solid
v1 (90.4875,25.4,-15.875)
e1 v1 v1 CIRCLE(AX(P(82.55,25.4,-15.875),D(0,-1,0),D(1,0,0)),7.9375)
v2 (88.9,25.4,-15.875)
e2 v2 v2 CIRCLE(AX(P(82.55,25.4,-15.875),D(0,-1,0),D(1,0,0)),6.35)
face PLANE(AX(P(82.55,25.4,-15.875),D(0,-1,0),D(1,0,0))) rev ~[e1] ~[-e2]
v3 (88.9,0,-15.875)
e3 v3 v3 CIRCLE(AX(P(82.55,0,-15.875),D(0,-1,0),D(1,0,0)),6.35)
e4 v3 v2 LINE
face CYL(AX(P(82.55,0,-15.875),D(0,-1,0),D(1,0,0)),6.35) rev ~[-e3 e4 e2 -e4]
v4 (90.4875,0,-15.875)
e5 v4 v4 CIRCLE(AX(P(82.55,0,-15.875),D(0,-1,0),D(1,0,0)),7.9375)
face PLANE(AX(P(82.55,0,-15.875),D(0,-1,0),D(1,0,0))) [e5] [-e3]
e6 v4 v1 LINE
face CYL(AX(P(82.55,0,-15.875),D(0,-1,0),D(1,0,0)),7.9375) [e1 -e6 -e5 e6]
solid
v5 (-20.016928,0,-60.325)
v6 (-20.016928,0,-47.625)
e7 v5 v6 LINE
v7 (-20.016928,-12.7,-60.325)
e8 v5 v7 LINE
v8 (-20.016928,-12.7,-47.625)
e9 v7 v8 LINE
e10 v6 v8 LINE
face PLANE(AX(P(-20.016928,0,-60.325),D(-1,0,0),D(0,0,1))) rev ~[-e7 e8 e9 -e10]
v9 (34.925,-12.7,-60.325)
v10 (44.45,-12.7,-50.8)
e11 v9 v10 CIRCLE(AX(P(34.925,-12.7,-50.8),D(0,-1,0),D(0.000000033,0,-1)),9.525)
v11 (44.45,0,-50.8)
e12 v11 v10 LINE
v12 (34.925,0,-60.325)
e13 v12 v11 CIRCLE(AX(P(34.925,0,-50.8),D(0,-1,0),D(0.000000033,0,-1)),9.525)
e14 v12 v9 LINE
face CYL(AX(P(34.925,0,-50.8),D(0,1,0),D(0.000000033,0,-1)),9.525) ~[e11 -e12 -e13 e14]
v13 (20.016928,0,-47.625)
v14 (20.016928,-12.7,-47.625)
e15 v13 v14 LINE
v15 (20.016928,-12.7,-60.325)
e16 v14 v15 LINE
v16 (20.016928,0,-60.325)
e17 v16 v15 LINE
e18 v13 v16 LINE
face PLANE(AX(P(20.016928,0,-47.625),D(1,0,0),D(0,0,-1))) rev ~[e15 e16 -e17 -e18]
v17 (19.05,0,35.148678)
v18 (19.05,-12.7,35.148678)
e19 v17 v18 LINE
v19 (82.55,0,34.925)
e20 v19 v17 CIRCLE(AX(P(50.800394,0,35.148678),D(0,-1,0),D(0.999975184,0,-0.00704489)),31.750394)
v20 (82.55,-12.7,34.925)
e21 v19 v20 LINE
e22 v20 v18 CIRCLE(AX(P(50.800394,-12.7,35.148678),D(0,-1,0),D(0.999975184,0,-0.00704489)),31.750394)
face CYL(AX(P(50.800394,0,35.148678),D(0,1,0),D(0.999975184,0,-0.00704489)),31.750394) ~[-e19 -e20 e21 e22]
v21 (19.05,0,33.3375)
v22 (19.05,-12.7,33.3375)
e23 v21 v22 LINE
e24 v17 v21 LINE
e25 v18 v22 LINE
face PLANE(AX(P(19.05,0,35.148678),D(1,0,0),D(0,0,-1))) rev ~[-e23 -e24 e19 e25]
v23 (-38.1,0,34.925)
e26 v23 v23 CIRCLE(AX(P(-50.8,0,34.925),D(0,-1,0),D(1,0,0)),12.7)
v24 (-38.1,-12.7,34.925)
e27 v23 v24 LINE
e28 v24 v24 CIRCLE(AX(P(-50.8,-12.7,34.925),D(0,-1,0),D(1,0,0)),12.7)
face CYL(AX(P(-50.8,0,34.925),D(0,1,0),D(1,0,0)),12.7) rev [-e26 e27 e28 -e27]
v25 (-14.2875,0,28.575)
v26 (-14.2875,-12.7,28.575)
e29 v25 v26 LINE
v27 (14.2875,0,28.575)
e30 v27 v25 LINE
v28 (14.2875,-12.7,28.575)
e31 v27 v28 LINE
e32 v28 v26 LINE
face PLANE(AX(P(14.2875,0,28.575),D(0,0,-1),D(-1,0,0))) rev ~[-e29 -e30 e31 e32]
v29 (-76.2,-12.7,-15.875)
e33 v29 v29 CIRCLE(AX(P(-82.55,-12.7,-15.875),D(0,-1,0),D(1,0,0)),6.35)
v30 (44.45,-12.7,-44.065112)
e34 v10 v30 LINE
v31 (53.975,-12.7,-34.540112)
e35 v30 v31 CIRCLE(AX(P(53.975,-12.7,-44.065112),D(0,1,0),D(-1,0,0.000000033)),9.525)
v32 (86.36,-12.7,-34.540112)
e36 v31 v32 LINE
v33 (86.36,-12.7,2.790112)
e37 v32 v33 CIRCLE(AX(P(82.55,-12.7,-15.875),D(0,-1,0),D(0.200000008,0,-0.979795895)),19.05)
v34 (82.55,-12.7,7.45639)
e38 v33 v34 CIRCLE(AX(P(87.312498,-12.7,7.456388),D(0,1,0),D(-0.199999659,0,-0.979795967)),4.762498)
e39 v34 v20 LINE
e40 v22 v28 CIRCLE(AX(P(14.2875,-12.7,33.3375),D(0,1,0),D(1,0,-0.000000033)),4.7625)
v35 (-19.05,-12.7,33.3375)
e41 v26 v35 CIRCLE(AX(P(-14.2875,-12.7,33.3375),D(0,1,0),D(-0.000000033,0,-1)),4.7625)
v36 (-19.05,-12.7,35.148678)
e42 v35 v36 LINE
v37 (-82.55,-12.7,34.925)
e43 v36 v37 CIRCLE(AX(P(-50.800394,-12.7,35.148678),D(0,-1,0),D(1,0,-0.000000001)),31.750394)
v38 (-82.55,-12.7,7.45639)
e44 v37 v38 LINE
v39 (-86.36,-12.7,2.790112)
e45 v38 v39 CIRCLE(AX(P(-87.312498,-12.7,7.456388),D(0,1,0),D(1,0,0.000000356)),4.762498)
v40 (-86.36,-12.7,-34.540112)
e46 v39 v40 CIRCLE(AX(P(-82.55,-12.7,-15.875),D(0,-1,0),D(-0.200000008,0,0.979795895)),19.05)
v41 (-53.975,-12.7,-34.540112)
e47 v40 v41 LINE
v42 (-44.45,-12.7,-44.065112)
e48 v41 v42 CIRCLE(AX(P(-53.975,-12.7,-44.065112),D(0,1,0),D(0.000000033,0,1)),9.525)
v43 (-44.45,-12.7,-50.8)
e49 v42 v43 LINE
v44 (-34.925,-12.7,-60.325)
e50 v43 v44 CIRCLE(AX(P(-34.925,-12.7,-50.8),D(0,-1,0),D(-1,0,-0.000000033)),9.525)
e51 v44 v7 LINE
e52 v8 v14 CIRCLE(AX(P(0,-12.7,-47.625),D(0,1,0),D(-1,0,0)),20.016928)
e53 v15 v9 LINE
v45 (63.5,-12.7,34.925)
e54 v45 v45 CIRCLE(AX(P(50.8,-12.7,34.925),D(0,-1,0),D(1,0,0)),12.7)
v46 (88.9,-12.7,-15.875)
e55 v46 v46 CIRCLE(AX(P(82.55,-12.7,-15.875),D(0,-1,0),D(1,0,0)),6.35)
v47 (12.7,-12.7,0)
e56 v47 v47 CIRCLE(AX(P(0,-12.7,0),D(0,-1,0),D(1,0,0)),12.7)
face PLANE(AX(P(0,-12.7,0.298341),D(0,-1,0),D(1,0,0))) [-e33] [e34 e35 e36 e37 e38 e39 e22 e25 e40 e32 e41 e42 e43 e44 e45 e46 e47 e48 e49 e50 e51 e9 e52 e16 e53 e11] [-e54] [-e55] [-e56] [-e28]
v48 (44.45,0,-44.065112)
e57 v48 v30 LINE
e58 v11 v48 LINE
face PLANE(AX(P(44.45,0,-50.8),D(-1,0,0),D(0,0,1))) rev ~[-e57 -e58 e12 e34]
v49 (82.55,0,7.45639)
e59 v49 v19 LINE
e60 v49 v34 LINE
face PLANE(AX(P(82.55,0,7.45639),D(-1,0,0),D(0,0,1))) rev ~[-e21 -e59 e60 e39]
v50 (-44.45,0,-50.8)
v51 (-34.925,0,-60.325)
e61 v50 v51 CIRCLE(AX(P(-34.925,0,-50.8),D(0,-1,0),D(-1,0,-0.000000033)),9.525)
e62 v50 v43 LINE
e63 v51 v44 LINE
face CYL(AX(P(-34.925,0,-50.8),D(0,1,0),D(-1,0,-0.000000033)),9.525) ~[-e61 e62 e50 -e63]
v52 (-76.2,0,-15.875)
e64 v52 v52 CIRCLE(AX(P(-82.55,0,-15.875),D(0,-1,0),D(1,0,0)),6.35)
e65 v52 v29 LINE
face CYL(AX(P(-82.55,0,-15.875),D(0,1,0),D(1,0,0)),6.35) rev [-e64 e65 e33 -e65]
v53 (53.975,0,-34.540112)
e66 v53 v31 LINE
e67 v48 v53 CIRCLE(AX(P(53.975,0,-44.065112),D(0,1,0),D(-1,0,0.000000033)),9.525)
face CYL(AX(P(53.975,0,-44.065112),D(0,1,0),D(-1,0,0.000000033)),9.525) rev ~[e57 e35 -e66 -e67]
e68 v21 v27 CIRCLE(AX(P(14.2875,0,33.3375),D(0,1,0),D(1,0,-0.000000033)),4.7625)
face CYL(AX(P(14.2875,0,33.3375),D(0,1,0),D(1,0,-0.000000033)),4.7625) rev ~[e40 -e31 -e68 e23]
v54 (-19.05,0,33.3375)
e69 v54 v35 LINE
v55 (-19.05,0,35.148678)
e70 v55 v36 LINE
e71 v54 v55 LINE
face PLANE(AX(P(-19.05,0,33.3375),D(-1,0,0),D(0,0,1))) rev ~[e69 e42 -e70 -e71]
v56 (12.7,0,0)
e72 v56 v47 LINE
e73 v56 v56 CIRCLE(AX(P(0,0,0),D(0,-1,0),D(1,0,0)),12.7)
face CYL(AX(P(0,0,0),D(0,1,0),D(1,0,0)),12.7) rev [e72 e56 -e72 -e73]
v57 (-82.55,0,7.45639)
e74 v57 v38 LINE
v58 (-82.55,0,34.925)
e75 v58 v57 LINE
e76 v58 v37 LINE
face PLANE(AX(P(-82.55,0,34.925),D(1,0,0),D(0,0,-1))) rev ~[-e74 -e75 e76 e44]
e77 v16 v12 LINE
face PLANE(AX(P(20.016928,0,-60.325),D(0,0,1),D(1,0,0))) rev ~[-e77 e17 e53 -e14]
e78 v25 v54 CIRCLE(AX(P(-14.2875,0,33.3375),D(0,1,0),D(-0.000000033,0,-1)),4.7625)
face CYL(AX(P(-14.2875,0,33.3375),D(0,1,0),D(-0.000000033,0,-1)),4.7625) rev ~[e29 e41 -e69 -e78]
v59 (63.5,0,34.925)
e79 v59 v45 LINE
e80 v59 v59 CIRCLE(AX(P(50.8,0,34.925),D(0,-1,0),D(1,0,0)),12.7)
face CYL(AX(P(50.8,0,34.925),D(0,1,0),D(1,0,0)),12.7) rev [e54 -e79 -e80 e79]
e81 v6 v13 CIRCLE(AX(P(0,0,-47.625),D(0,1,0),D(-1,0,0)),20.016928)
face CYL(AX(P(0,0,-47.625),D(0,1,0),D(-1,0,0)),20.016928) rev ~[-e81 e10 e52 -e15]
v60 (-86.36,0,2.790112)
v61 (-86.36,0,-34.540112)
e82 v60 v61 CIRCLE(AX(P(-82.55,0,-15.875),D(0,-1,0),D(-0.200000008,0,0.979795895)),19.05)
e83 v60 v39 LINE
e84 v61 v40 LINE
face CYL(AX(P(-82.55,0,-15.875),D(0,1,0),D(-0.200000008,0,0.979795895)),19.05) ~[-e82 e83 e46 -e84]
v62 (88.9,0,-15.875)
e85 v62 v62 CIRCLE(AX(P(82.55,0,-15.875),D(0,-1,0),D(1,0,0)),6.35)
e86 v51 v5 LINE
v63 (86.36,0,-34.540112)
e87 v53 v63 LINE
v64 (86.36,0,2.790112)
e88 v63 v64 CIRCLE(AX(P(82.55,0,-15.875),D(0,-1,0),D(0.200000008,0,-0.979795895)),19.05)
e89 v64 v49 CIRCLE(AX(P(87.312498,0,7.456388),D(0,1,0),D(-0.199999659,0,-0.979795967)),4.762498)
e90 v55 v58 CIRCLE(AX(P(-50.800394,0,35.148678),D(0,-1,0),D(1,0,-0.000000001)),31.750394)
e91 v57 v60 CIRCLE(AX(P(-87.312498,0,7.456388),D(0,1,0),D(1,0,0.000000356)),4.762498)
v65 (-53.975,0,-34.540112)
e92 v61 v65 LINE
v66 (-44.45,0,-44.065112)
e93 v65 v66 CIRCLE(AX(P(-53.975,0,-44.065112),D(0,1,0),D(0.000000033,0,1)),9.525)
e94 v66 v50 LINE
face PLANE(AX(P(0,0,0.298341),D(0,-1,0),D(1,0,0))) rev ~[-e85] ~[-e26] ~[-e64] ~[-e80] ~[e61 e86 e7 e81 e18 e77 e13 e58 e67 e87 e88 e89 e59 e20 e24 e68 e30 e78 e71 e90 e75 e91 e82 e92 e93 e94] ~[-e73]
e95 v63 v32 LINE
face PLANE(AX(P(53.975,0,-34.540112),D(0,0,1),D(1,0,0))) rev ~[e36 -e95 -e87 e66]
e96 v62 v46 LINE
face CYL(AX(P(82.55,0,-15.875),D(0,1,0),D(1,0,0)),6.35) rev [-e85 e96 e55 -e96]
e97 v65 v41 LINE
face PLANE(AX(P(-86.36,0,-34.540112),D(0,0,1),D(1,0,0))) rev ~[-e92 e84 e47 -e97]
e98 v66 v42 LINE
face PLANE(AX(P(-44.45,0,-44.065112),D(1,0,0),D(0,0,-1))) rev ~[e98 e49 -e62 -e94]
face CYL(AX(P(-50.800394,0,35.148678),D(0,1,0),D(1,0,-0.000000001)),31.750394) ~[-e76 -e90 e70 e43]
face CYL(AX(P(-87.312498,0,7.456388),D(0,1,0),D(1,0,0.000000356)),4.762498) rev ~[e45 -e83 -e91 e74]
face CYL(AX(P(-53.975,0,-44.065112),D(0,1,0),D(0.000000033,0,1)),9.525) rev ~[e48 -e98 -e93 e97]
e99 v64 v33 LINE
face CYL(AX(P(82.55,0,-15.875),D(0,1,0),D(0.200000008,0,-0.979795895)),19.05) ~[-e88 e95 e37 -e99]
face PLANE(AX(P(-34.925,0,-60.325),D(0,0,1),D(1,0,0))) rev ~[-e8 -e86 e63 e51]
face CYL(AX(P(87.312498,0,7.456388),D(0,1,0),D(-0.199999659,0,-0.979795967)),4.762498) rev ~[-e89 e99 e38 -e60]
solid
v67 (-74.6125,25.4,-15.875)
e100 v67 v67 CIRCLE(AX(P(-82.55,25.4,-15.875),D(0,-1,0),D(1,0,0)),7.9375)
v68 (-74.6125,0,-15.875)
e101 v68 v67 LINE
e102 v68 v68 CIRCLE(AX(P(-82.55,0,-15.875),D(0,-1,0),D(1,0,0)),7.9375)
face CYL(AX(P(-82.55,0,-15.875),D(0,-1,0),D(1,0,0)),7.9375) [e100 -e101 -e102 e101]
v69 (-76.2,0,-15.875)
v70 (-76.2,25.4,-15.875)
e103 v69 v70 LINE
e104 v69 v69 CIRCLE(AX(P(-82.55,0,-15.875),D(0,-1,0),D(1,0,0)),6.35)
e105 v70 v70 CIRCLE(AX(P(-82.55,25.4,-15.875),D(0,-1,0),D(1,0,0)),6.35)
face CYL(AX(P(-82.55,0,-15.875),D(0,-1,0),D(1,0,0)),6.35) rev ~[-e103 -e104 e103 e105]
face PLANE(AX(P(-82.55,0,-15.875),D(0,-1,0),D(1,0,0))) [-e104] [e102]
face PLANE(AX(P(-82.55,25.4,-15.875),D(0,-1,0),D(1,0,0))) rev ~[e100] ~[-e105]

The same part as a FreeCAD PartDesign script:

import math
import FreeCAD as App
import Part
import Sketcher
from FreeCAD import Vector
Q = App.Units.Quantity

doc = App.newDocument("Part")
body = doc.addObject("PartDesign::Body", "Body")

sketch1 = body.newObject("Sketcher::SketchObject", "Sketch")
sketch1.AttachmentSupport = (doc.getObject("XZ_Plane"), [""])
sketch1.MapMode = "FlatFace"
sketch1.addGeometry(Part.LineSegment(Vector(14.2875, 28.575, 0), Vector(-14.2875, 28.575, 0)), False)
sketch1.addGeometry(Part.ArcOfCircle(Part.Circle(Vector(-14.2875, 33.3375, 0), Vector(0, 0, 1), 4.7625), math.radians(-179.999998), math.radians(-90.000002)), False)
sketch1.addGeometry(Part.LineSegment(Vector(-19.05, 33.3375, 0), Vector(-19.05, 35.148678, 0)), False)
sketch1.addGeometry(Part.ArcOfCircle(Part.Circle(Vector(-50.800394, 35.148678, 0), Vector(0, 0, 1), 31.750394), math.radians(0), math.radians(180.403646)), False)
sketch1.addGeometry(Part.LineSegment(Vector(-82.55, 34.925, 0), Vector(-82.55, 7.45639, 0)), False)
sketch1.addGeometry(Part.ArcOfCircle(Part.Circle(Vector(-87.312498, 7.456388, 0), Vector(0, 0, 1), 4.762498), math.radians(-78.463061), math.radians(0.00002)), False)
sketch1.addGeometry(Part.ArcOfCircle(Part.Circle(Vector(-82.55, -15.875, 0), Vector(0, 0, 1), 19.05), math.radians(101.53696), math.radians(258.46304)), False)
sketch1.addGeometry(Part.LineSegment(Vector(-86.36, -34.540112, 0), Vector(-53.975, -34.540112, 0)), False)
sketch1.addGeometry(Part.ArcOfCircle(Part.Circle(Vector(-53.975, -44.065112, 0), Vector(0, 0, 1), 9.525), math.radians(0.000002), math.radians(89.999998)), False)
sketch1.addGeometry(Part.LineSegment(Vector(-44.45, -44.065112, 0), Vector(-44.45, -50.8, 0)), False)
sketch1.addGeometry(Part.ArcOfCircle(Part.Circle(Vector(-34.925, -50.8, 0), Vector(0, 0, 1), 9.525), math.radians(-179.999998), math.radians(-90.000002)), False)
sketch1.addGeometry(Part.LineSegment(Vector(-34.925, -60.325, 0), Vector(-20.016928, -60.325, 0)), False)
sketch1.addGeometry(Part.LineSegment(Vector(-20.016928, -60.325, 0), Vector(-20.016928, -47.625, 0)), False)
sketch1.addGeometry(Part.ArcOfCircle(Part.Circle(Vector(0, -47.625, 0), Vector(0, 0, 1), 20.016928), math.radians(0), math.radians(180)), False)
sketch1.addGeometry(Part.LineSegment(Vector(20.016928, -47.625, 0), Vector(20.016928, -60.325, 0)), False)
sketch1.addGeometry(Part.LineSegment(Vector(20.016928, -60.325, 0), Vector(34.925, -60.325, 0)), False)
sketch1.addGeometry(Part.ArcOfCircle(Part.Circle(Vector(34.925, -50.8, 0), Vector(0, 0, 1), 9.525), math.radians(-89.999998), math.radians(-0.000002)), False)
sketch1.addGeometry(Part.LineSegment(Vector(44.45, -50.8, 0), Vector(44.45, -44.065112, 0)), False)
sketch1.addGeometry(Part.ArcOfCircle(Part.Circle(Vector(53.975, -44.065112, 0), Vector(0, 0, 1), 9.525), math.radians(90.000002), math.radians(179.999998)), False)
sketch1.addGeometry(Part.LineSegment(Vector(53.975, -34.540112, 0), Vector(86.36, -34.540112, 0)), False)
sketch1.addGeometry(Part.ArcOfCircle(Part.Circle(Vector(82.55, -15.875, 0), Vector(0, 0, 1), 19.05), math.radians(-78.46304), math.radians(78.46304)), False)
sketch1.addGeometry(Part.ArcOfCircle(Part.Circle(Vector(87.312498, 7.456388, 0), Vector(0, 0, 1), 4.762498), math.radians(179.99998), math.radians(258.463061)), False)
sketch1.addGeometry(Part.LineSegment(Vector(82.55, 7.45639, 0), Vector(82.55, 34.925, 0)), False)
sketch1.addGeometry(Part.ArcOfCircle(Part.Circle(Vector(50.800394, 35.148678, 0), Vector(0, 0, 1), 31.750394), math.radians(-0.403646), math.radians(180)), False)
sketch1.addGeometry(Part.LineSegment(Vector(19.05, 35.148678, 0), Vector(19.05, 33.3375, 0)), False)
sketch1.addGeometry(Part.ArcOfCircle(Part.Circle(Vector(14.2875, 33.3375, 0), Vector(0, 0, 1), 4.7625), math.radians(-89.999998), math.radians(-0.000002)), False)
sketch1.addGeometry(Part.Circle(Vector(-82.55, -15.875, 0), Vector(0, 0, 1), 6.35), False)
sketch1.addGeometry(Part.Circle(Vector(82.55, -15.875, 0), Vector(0, 0, 1), 6.35), False)
sketch1.addGeometry(Part.Circle(Vector(0, 0, 0), Vector(0, 0, 1), 12.7), False)
sketch1.addGeometry(Part.Circle(Vector(-50.8, 34.925, 0), Vector(0, 0, 1), 12.7), False)
sketch1.addGeometry(Part.Circle(Vector(50.8, 34.925, 0), Vector(0, 0, 1), 12.7), False)
sketch1.addConstraint(Sketcher.Constraint("Tangent", 0, 2, 1, 2))
sketch1.addConstraint(Sketcher.Constraint("Tangent", 1, 1, 2, 1))
sketch1.addConstraint(Sketcher.Constraint("Tangent", 2, 2, 3, 1))
sketch1.addConstraint(Sketcher.Constraint("Coincident", 3, 2, 4, 1))
sketch1.addConstraint(Sketcher.Constraint("Tangent", 4, 2, 5, 2))
sketch1.addConstraint(Sketcher.Constraint("Tangent", 5, 1, 6, 1))
sketch1.addConstraint(Sketcher.Constraint("Coincident", 6, 2, 7, 1))
sketch1.addConstraint(Sketcher.Constraint("Tangent", 7, 2, 8, 2))
sketch1.addConstraint(Sketcher.Constraint("Tangent", 8, 1, 9, 1))
sketch1.addConstraint(Sketcher.Constraint("Tangent", 9, 2, 10, 1))
sketch1.addConstraint(Sketcher.Constraint("Tangent", 10, 2, 11, 1))
sketch1.addConstraint(Sketcher.Constraint("Coincident", 11, 2, 12, 1))
sketch1.addConstraint(Sketcher.Constraint("Tangent", 12, 2, 13, 2))
sketch1.addConstraint(Sketcher.Constraint("Tangent", 13, 1, 14, 1))
sketch1.addConstraint(Sketcher.Constraint("Coincident", 14, 2, 15, 1))
sketch1.addConstraint(Sketcher.Constraint("Tangent", 15, 2, 16, 1))
sketch1.addConstraint(Sketcher.Constraint("Tangent", 16, 2, 17, 1))
sketch1.addConstraint(Sketcher.Constraint("Tangent", 17, 2, 18, 2))
sketch1.addConstraint(Sketcher.Constraint("Tangent", 18, 1, 19, 1))
sketch1.addConstraint(Sketcher.Constraint("Coincident", 19, 2, 20, 1))
sketch1.addConstraint(Sketcher.Constraint("Tangent", 20, 2, 21, 2))
sketch1.addConstraint(Sketcher.Constraint("Tangent", 21, 1, 22, 1))
sketch1.addConstraint(Sketcher.Constraint("Coincident", 22, 2, 23, 1))
sketch1.addConstraint(Sketcher.Constraint("Tangent", 23, 2, 24, 1))
sketch1.addConstraint(Sketcher.Constraint("Tangent", 24, 2, 25, 2))
sketch1.addConstraint(Sketcher.Constraint("Tangent", 25, 1, 0, 1))
sketch1.addConstraint(Sketcher.Constraint("Horizontal", 0))
sketch1.addConstraint(Sketcher.Constraint("Vertical", 2))
sketch1.addConstraint(Sketcher.Constraint("Vertical", 4))
sketch1.addConstraint(Sketcher.Constraint("Horizontal", 7))
sketch1.addConstraint(Sketcher.Constraint("Vertical", 9))
sketch1.addConstraint(Sketcher.Constraint("Horizontal", 11))
sketch1.addConstraint(Sketcher.Constraint("Vertical", 12))
sketch1.addConstraint(Sketcher.Constraint("Vertical", 14))
sketch1.addConstraint(Sketcher.Constraint("Horizontal", 15))
sketch1.addConstraint(Sketcher.Constraint("Vertical", 17))
sketch1.addConstraint(Sketcher.Constraint("Horizontal", 19))
sketch1.addConstraint(Sketcher.Constraint("Vertical", 22))
sketch1.addConstraint(Sketcher.Constraint("Vertical", 24))
sketch1.addConstraint(Sketcher.Constraint("Coincident", 28, 3, -1, 1))
sketch1.addConstraint(Sketcher.Constraint("Coincident", 26, 3, 6, 3))
sketch1.addConstraint(Sketcher.Constraint("Coincident", 27, 3, 20, 3))
sketch1.addConstraint(Sketcher.Constraint("Equal", 8, 10))
sketch1.addConstraint(Sketcher.Constraint("Equal", 10, 16))
sketch1.addConstraint(Sketcher.Constraint("Equal", 16, 18))
sketch1.addConstraint(Sketcher.Constraint("Equal", 6, 20))
sketch1.addConstraint(Sketcher.Constraint("Equal", 5, 21))
sketch1.addConstraint(Sketcher.Constraint("Equal", 3, 23))
sketch1.addConstraint(Sketcher.Constraint("Equal", 1, 25))
sketch1.addConstraint(Sketcher.Constraint("Equal", 26, 27))
sketch1.addConstraint(Sketcher.Constraint("Equal", 28, 29))
sketch1.addConstraint(Sketcher.Constraint("Equal", 29, 30))
sketch1.addConstraint(Sketcher.Constraint("Symmetric", 10, 3, 16, 3, -2))
sketch1.addConstraint(Sketcher.Constraint("Symmetric", 6, 3, 20, 3, -2))
sketch1.addConstraint(Sketcher.Constraint("Symmetric", 3, 3, 23, 3, -2))
sketch1.addConstraint(Sketcher.Constraint("Symmetric", 29, 3, 30, 3, -2))
sketch1.addConstraint(Sketcher.Constraint("PointOnObject", 13, 3, -2))
sketch1.addConstraint(Sketcher.Constraint("Horizontal", 8, 3, 18, 3))
sketch1.addConstraint(Sketcher.Constraint("Horizontal", 30, 3, 3, 2))
sketch1.addConstraint(Sketcher.Constraint("Horizontal", 3, 2, 22, 2))
sketch1.addConstraint(Sketcher.Constraint("Vertical", 26, 3, 3, 2))
sketch1.addConstraint(Sketcher.Constraint("Vertical", 5, 1, 6, 2))
sketch1.addConstraint(Sketcher.Constraint("Diameter", 28, Q("1 in")))
sketch1.addConstraint(Sketcher.Constraint("Diameter", 26, Q("0.5 in")))
sketch1.addConstraint(Sketcher.Constraint("Radius", 6, Q("0.75 in")))
sketch1.addConstraint(Sketcher.Constraint("DistanceY", 12, 1, 12, 2, Q("0.5 in")))
sketch1.addConstraint(Sketcher.Constraint("DistanceY", 10, 3, -1, 1, Q("2 in")))
sketch1.addConstraint(Sketcher.Constraint("DistanceX", 29, 3, -1, 1, Q("2 in")))
sketch1.addConstraint(Sketcher.Constraint("Radius", 1, Q("0.1875 in")))
sketch1.addConstraint(Sketcher.Constraint("Radius", 5, Q("0.1874999 in")))
sketch1.addConstraint(Sketcher.Constraint("Radius", 8, Q("0.375 in")))
sketch1.addConstraint(Sketcher.Constraint("DistanceX", 1, 3, 21, 3, Q("3.9999999 in")))
sketch1.addConstraint(Sketcher.Constraint("DistanceY", 6, 3, 29, 3, Q("2 in")))
sketch1.addConstraint(Sketcher.Constraint("DistanceX", 5, 1, -1, 1, Q("3.4 in")))
sketch1.addConstraint(Sketcher.Constraint("DistanceX", 8, 3, 16, 3, Q("3.5 in")))
sketch1.addConstraint(Sketcher.Constraint("DistanceY", 13, 3, 6, 3, Q("1.25 in")))
sketch1.addConstraint(Sketcher.Constraint("DistanceY", 0, 2, 29, 3, Q("0.25 in")))
sketch1.addConstraint(Sketcher.Constraint("Radius", 13, 20.016928))
sketch1.addConstraint(Sketcher.Constraint("DistanceY", 2, 1, 2, 2, 1.811178))
pad1 = body.newObject("PartDesign::Pad", "Pad")
pad1.Profile = sketch1
pad1.Length = Q("0.5 in")
body2 = doc.addObject("PartDesign::Body", "Body001")
body2.AllowCompound = True

sketch2 = body2.newObject("Sketcher::SketchObject", "Sketch001")
sketch2.AttachmentSupport = (doc.getObject("XZ_Plane001"), [""])
sketch2.MapMode = "FlatFace"
sketch2.addGeometry(Part.Circle(Vector(-82.55, -15.875, 0), Vector(0, 0, 1), 7.9375), False)
sketch2.addGeometry(Part.Circle(Vector(-82.55, -15.875, 0), Vector(0, 0, 1), 6.35), False)
sketch2.addGeometry(Part.Circle(Vector(82.55, -15.875, 0), Vector(0, 0, 1), 7.9375), False)
sketch2.addGeometry(Part.Circle(Vector(82.55, -15.875, 0), Vector(0, 0, 1), 6.35), False)
sketch2.addConstraint(Sketcher.Constraint("Coincident", 1, 3, 0, 3))
sketch2.addConstraint(Sketcher.Constraint("Coincident", 3, 3, 2, 3))
sketch2.addConstraint(Sketcher.Constraint("Equal", 0, 2))
sketch2.addConstraint(Sketcher.Constraint("Equal", 1, 3))
sketch2.addConstraint(Sketcher.Constraint("Symmetric", 0, 3, 2, 3, -2))
sketch2.addConstraint(Sketcher.Constraint("Diameter", 1, Q("0.5 in")))
sketch2.addConstraint(Sketcher.Constraint("Diameter", 0, Q("0.625 in")))
sketch2.addConstraint(Sketcher.Constraint("DistanceX", 0, 3, 2, 3, Q("6.5 in")))
sketch2.addConstraint(Sketcher.Constraint("DistanceY", 0, 3, -1, 1, Q("0.625 in")))
pad2 = body2.newObject("PartDesign::Pad", "Pad001")
pad2.Profile = sketch2
pad2.Length = Q("1 in")
pad2.Reversed = True

doc.recompute()
